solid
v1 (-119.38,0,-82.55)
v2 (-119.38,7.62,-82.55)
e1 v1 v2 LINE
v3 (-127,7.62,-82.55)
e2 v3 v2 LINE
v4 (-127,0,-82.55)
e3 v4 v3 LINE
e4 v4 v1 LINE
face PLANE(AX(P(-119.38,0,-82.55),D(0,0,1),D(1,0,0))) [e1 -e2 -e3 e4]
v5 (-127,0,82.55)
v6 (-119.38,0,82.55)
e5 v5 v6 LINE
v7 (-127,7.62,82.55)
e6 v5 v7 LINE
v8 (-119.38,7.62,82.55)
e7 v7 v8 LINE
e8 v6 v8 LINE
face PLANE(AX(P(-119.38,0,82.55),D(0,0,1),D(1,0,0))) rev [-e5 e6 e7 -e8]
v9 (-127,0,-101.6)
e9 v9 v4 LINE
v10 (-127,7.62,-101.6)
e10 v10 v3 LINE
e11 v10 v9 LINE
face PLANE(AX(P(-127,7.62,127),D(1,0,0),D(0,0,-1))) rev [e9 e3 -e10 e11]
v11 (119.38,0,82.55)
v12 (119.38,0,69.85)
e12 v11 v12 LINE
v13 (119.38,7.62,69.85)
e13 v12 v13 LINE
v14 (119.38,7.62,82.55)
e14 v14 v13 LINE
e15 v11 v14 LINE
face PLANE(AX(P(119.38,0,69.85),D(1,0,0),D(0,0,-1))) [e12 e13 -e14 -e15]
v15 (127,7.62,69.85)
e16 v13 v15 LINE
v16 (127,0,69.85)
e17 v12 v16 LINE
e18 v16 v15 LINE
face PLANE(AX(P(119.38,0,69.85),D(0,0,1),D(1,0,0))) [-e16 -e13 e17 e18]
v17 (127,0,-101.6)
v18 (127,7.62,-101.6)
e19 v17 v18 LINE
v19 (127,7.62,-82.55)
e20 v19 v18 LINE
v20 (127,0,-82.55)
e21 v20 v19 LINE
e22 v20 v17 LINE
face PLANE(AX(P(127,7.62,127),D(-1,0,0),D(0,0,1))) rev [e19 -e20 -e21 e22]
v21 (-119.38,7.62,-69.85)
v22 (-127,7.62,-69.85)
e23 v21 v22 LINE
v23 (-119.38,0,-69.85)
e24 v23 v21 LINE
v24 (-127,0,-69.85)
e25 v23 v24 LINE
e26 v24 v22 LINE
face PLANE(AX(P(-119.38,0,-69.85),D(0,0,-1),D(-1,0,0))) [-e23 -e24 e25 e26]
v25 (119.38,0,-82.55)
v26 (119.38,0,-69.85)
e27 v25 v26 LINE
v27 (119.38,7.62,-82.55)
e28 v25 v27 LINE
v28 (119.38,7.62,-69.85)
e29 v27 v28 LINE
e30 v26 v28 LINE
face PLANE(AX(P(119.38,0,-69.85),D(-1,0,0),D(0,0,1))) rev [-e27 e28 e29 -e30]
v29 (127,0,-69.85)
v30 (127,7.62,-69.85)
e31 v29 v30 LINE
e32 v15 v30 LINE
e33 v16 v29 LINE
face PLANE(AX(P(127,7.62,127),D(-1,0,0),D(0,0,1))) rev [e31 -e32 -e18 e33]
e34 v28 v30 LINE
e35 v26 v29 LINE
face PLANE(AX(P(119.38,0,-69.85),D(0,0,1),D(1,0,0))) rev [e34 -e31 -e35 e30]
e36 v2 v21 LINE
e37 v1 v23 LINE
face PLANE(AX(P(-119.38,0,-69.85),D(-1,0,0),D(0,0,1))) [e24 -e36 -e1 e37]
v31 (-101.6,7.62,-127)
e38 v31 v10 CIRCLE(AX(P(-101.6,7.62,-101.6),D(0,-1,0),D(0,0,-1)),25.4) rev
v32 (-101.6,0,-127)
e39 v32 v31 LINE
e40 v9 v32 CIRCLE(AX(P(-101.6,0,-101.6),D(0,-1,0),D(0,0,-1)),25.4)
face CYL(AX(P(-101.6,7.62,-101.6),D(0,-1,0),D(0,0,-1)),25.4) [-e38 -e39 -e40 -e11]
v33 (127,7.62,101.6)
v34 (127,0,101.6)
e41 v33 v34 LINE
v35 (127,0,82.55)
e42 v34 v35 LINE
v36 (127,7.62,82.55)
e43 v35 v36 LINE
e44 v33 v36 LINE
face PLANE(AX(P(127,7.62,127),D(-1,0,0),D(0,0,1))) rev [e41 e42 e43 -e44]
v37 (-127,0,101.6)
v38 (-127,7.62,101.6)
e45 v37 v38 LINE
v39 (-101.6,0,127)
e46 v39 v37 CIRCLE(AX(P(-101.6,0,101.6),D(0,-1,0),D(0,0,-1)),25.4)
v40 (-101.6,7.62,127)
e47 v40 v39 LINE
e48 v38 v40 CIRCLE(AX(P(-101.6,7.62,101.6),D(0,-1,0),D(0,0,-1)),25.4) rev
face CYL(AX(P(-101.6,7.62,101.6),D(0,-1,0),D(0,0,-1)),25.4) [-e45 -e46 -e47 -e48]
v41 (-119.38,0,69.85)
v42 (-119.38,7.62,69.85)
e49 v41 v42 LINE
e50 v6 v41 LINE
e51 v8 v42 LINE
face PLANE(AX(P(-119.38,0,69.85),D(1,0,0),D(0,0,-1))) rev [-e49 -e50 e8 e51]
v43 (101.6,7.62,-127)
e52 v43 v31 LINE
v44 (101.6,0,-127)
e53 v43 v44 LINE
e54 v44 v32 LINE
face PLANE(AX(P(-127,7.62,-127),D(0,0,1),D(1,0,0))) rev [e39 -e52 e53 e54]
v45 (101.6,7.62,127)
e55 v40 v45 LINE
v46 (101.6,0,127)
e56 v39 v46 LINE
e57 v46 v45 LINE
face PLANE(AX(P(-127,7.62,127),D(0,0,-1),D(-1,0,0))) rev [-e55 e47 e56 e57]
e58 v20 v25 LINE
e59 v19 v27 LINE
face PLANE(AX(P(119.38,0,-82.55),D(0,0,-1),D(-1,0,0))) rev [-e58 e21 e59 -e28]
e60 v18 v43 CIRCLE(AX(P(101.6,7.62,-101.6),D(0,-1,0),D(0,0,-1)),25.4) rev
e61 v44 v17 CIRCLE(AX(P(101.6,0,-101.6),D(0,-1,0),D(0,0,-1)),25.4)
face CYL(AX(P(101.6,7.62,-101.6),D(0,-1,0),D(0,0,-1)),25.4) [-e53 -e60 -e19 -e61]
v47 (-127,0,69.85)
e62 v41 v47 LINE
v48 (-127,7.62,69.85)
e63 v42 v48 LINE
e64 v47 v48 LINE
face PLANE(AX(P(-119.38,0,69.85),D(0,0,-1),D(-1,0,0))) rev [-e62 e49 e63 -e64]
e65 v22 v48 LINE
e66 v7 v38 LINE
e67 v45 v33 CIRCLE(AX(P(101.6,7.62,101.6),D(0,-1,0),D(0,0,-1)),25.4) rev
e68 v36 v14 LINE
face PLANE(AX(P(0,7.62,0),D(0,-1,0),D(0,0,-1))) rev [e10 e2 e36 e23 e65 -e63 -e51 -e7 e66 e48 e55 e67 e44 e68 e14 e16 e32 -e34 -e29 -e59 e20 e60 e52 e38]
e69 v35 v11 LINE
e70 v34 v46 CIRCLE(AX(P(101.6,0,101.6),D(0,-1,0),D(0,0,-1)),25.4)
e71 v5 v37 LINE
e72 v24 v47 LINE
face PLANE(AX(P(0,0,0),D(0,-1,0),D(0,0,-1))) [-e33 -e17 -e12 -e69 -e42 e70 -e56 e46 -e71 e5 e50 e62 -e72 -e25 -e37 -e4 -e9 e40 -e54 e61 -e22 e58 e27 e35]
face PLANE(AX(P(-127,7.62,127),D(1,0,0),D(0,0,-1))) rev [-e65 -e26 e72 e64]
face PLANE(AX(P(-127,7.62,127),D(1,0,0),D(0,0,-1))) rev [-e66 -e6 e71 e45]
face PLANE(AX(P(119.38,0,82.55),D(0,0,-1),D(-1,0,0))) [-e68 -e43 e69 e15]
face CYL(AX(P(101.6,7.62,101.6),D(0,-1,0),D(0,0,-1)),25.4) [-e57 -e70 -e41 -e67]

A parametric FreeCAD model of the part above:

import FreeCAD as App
import Part
import Sketcher
Q = App.Units.Quantity


def edges_at(feature, points):
    """Names of the edges that pass closest to the given points."""
    edges = feature.Shape.Edges
    near = lambda p: min(range(len(edges)), key=lambda i: edges[i].distToShape(Part.Vertex(*p))[0])
    return sorted({f"Edge{near(p) + 1}" for p in points})

doc = App.newDocument("Part")
body = doc.addObject("PartDesign::Body", "Body")

# Sketch on XZ plane
sketch1 = body.newObject("Sketcher::SketchObject", "Sketch")
sketch1.AttachmentSupport = (doc.getObject("XZ_Plane"), [""])
sketch1.MapMode = "FlatFace"
sketch1.addGeometry([
    Part.LineSegment(App.Vector(-127, -127, 0), App.Vector(-127, 127, 0)),
    Part.LineSegment(App.Vector(-127, 127, 0), App.Vector(127, 127, 0)),
    Part.LineSegment(App.Vector(127, 127, 0), App.Vector(127, -127, 0)),
    Part.LineSegment(App.Vector(127, -127, 0), App.Vector(-127, -127, 0)),
], False)
sketch1.addConstraint([
    Sketcher.Constraint("Coincident", 0, 2, 1, 1),
    Sketcher.Constraint("Coincident", 1, 2, 2, 1),
    Sketcher.Constraint("Coincident", 2, 2, 3, 1),
    Sketcher.Constraint("Coincident", 3, 2, 0, 1),
    Sketcher.Constraint("Vertical", 0),
    Sketcher.Constraint("Horizontal", 1),
    Sketcher.Constraint("Vertical", 2),
    Sketcher.Constraint("Horizontal", 3),
    Sketcher.Constraint("Symmetric", 0, 2, 2, 2, -1, 1),
    Sketcher.Constraint("Equal", 3, 0),
    Sketcher.Constraint("DistanceX", 1, 1, 1, 2, Q("10 in")),
])
pad1 = body.newObject("PartDesign::Pad", "Pad")
pad1.Profile = sketch1
pad1.Length = Q("0.3 in")
pad1.Reversed = True
doc.recompute()

fillet = body.newObject("PartDesign::Fillet", "Fillet")
fillet.Base = (pad1, edges_at(pad1, [
    (127, 3.81, 127),
    (-127, 3.81, 127),
    (-127, 3.81, -127),
    (127, 3.81, -127),
]))
fillet.Radius = Q("1 in")

# Sketch on XZ plane
sketch2 = body.newObject("Sketcher::SketchObject", "Sketch001")
sketch2.AttachmentSupport = (doc.getObject("XZ_Plane"), [""])
sketch2.MapMode = "FlatFace"
sketch2.AttachmentOffset = App.Placement(App.Vector(0, 0, -0.3 * 25.4), App.Rotation())
sketch2.addGeometry([
    Part.LineSegment(App.Vector(-127, 70, 0), App.Vector(-127, 83, 0)),
    Part.LineSegment(App.Vector(-127, 83, 0), App.Vector(-119, 83, 0)),
    Part.LineSegment(App.Vector(-119, 83, 0), App.Vector(-119, 70, 0)),
    Part.LineSegment(App.Vector(-119, 70, 0), App.Vector(-127, 70, 0)),
], False)
sketch2.addConstraint([
    Sketcher.Constraint("Coincident", 0, 2, 1, 1),
    Sketcher.Constraint("Coincident", 1, 2, 2, 1),
    Sketcher.Constraint("Coincident", 2, 2, 3, 1),
    Sketcher.Constraint("Coincident", 3, 2, 0, 1),
    Sketcher.Constraint("Vertical", 0),
    Sketcher.Constraint("Horizontal", 1),
    Sketcher.Constraint("Vertical", 2),
    Sketcher.Constraint("Horizontal", 3),
    Sketcher.Constraint("DistanceX", 1, 1, 1, 2, Q("0.3 in")),
    Sketcher.Constraint("DistanceY", 0, 1, 0, 2, Q("0.5 in")),
    Sketcher.Constraint("DistanceX", 0, 2, -1, 1, Q("5 in")),
    Sketcher.Constraint("DistanceY", -1, 1, 0, 2, Q("3.25 in")),
])
pocket1 = body.newObject("PartDesign::Pocket", "Pocket")
pocket1.Profile = sketch2
pocket1.Type = "ThroughAll"
pocket1.Reversed = True
doc.recompute()

mirrored = body.newObject("PartDesign::Mirrored", "Mirrored")
mirrored.Originals = [pocket1]
mirrored.MirrorPlane = (doc.getObject("XY_Plane"), [""])
body.Tip = mirrored
doc.recompute()

mirrored2 = body.newObject("PartDesign::Mirrored", "Mirrored001")
mirrored2.Originals = [pocket1]
mirrored2.MirrorPlane = (doc.getObject("YZ_Plane"), [""])
body.Tip = mirrored2

# Sketch on XZ plane
sketch3 = body.newObject("Sketcher::SketchObject", "Sketch002")
sketch3.AttachmentSupport = (doc.getObject("XZ_Plane"), [""])
sketch3.MapMode = "FlatFace"
sketch3.AttachmentOffset = App.Placement(App.Vector(0, 0, -0.3 * 25.4), App.Rotation())
sketch3.addGeometry([
    Part.LineSegment(App.Vector(127, -70, 0), App.Vector(127, -83, 0)),
    Part.LineSegment(App.Vector(127, -83, 0), App.Vector(119, -83, 0)),
    Part.LineSegment(App.Vector(119, -83, 0), App.Vector(119, -70, 0)),
    Part.LineSegment(App.Vector(119, -70, 0), App.Vector(127, -70, 0)),
], False)
sketch3.addConstraint([
    Sketcher.Constraint("Coincident", 0, 2, 1, 1),
    Sketcher.Constraint("Coincident", 1, 2, 2, 1),
    Sketcher.Constraint("Coincident", 2, 2, 3, 1),
    Sketcher.Constraint("Coincident", 3, 2, 0, 1),
    Sketcher.Constraint("Vertical", 0),
    Sketcher.Constraint("Horizontal", 1),
    Sketcher.Constraint("Vertical", 2),
    Sketcher.Constraint("Horizontal", 3),
    Sketcher.Constraint("DistanceX", 1, 2, 1, 1, Q("0.3 in")),
    Sketcher.Constraint("DistanceY", 0, 2, 0, 1, Q("0.5 in")),
    Sketcher.Constraint("DistanceX", -1, 1, 0, 2, Q("5 in")),
    Sketcher.Constraint("DistanceY", 0, 2, -1, 1, Q("3.25 in")),
])
pocket2 = body.newObject("PartDesign::Pocket", "Pocket001")
pocket2.Profile = sketch3
pocket2.Type = "ThroughAll"
pocket2.Reversed = True

doc.recompute()
